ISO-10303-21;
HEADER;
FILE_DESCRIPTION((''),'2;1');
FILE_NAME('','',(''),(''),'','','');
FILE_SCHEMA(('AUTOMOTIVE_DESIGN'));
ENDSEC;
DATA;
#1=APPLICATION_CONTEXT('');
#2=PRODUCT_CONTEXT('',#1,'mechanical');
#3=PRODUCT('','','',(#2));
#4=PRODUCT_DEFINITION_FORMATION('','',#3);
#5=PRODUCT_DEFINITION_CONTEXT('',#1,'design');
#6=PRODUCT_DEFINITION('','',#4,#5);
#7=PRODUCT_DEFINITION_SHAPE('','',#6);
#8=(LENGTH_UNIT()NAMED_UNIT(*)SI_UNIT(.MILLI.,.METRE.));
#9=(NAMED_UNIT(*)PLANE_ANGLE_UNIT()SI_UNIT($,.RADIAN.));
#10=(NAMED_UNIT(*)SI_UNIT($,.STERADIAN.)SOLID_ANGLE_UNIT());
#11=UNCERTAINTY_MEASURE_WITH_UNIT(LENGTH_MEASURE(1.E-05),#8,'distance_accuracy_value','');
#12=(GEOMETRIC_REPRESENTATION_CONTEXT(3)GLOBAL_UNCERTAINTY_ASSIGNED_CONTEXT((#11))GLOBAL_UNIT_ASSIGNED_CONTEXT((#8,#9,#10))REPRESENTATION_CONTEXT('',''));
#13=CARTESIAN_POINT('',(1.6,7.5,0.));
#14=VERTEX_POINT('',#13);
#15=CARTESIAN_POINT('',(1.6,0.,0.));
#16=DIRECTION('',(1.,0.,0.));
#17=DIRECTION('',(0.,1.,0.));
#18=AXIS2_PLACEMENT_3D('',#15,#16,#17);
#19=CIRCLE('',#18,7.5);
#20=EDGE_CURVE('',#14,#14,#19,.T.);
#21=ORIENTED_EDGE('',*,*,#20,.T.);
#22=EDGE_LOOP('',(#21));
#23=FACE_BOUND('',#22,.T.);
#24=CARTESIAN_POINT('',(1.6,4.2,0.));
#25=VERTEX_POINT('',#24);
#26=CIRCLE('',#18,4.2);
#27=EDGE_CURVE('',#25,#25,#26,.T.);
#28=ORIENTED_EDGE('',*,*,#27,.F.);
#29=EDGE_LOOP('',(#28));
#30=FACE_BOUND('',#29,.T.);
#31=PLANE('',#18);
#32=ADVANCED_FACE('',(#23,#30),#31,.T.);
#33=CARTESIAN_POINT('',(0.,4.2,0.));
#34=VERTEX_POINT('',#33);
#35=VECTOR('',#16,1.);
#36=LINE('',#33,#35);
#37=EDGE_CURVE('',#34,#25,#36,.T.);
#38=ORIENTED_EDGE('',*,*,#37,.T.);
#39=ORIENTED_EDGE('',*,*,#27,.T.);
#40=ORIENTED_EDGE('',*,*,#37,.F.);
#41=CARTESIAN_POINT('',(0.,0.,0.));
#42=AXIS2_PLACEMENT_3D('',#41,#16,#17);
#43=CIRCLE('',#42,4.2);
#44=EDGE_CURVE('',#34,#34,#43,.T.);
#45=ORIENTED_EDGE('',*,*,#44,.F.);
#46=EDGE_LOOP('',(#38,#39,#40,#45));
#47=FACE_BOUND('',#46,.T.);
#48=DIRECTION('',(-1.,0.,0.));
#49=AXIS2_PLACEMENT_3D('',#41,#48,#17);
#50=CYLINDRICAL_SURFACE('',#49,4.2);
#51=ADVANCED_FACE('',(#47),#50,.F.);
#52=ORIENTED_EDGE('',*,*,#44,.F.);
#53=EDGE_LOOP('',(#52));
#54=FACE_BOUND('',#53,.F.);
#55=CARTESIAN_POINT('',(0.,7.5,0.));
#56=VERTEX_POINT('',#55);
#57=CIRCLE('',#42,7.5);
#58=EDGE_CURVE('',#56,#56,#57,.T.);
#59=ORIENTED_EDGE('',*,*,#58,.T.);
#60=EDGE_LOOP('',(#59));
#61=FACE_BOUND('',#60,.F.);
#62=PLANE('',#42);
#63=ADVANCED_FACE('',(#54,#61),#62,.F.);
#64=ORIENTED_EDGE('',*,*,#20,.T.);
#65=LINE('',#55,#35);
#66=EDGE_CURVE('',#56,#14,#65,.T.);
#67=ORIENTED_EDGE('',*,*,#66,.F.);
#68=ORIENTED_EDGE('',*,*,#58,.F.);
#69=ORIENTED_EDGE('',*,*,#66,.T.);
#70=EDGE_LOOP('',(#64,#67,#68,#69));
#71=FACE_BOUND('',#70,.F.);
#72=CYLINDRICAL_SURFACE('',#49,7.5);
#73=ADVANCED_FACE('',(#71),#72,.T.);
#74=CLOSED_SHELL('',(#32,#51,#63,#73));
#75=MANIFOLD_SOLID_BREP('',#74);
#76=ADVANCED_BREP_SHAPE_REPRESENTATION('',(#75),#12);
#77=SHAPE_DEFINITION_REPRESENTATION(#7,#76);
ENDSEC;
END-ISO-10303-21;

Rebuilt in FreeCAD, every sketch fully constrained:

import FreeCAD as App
import Part
import Sketcher
from FreeCAD import Vector
Q = App.Units.Quantity

doc = App.newDocument("Part")
body = doc.addObject("PartDesign::Body", "Body")

# Sketch on YZ plane
sketch1 = doc.addObject("Sketcher::SketchObject", "Sketch")
body.addObject(sketch1)
sketch1.AttachmentSupport = (doc.YZ_Plane, [""])
sketch1.MapMode = "FlatFace"
sketch1.addGeometry([
    Part.Circle(Vector(0, 0, 0), Vector(0, 0, 1), 7.5),
    Part.Circle(Vector(0, 0, 0), Vector(0, 0, 1), 4.2),
], False)
sketch1.addConstraint([
    Sketcher.Constraint("Coincident", 0, 3, -1, 1),
    Sketcher.Constraint("Coincident", 1, 3, -1, 1),
    Sketcher.Constraint("Diameter", 0, Q("15 mm")),
    Sketcher.Constraint("Diameter", 1, Q("8.4 mm")),
])
pad1 = doc.addObject("PartDesign::Pad", "Pad")
body.addObject(pad1)
pad1.Profile = sketch1
pad1.Length = 1.6

doc.recompute()
